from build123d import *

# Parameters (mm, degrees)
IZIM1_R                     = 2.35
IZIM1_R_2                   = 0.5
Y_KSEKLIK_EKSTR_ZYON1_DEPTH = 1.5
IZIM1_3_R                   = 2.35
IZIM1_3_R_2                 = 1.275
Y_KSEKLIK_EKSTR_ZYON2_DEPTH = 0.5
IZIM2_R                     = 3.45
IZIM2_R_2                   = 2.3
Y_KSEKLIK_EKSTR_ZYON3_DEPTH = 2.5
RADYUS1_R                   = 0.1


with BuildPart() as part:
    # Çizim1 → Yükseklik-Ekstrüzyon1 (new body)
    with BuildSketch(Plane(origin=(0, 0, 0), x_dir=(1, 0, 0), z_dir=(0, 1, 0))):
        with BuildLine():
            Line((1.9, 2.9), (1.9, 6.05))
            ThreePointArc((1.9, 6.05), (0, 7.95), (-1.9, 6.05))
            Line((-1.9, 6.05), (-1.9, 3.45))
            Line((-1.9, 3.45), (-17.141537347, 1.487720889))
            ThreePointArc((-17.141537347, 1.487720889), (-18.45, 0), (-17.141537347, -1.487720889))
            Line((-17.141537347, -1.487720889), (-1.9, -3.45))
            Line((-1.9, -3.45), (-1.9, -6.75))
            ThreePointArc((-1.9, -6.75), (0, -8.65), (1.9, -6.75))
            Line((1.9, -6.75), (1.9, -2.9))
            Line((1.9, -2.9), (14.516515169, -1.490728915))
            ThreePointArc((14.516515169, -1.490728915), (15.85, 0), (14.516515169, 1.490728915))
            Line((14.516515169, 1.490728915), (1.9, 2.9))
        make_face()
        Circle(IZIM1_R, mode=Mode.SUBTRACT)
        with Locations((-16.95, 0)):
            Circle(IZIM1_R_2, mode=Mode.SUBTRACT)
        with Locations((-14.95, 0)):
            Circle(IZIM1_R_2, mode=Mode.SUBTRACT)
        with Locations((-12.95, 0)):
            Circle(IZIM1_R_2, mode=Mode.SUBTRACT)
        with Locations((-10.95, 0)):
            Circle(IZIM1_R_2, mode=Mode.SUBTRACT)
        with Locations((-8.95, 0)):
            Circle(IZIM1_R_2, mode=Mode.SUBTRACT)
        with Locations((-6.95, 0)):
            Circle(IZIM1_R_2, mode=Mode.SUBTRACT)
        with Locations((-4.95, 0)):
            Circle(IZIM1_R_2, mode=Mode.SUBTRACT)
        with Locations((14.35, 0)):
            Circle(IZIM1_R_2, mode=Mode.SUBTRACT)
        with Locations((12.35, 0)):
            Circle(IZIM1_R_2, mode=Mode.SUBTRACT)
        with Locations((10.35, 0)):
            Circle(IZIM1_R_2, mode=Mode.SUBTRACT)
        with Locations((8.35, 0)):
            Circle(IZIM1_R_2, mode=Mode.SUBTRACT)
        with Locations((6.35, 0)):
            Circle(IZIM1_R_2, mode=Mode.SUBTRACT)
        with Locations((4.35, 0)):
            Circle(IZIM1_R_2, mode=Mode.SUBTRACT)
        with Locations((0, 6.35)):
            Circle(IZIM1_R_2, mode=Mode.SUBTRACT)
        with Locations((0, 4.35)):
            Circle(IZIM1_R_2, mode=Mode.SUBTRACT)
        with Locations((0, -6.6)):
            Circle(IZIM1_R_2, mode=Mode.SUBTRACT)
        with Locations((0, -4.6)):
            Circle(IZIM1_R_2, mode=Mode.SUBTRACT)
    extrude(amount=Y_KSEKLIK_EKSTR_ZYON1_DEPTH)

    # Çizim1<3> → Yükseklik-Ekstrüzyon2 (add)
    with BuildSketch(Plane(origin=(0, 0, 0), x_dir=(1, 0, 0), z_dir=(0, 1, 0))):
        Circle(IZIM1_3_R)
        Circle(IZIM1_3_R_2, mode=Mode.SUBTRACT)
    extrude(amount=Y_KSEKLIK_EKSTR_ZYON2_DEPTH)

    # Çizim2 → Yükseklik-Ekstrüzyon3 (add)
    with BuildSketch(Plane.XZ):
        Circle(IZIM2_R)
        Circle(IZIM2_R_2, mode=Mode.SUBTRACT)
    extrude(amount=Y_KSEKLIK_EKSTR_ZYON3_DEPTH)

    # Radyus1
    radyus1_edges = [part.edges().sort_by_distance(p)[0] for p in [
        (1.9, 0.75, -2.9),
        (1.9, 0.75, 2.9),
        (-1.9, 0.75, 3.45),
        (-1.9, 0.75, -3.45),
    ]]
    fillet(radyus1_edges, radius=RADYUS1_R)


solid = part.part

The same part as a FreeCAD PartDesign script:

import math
import FreeCAD as App
import Part
import Sketcher


def edges_at(feature, points):
    """Names of the edges that pass closest to the given points."""
    edges = feature.Shape.Edges
    near = lambda p: min(range(len(edges)), key=lambda i: edges[i].distToShape(Part.Vertex(*p))[0])
    return sorted({f"Edge{near(p) + 1}" for p in points})

doc = App.newDocument("Part")
params = doc.addObject("Spreadsheet::Sheet", "Params")
for row, (alias, value) in enumerate([
    ("sketch1_diameter", "1 mm"),
    ("sketch1_diameter2", "4.7 mm"),
    ("sketch1_radius", "1.9 mm"),
    ("sketch1_radius2", "1.5 mm"),
    ("sketch1_height", "2.6 mm"),
    ("pad1_length", "1.5 mm"),
    ("sketch2_diameter", "4.7 mm"),
    ("sketch2_diameter2", "2.55 mm"),
    ("pad2_length", "0.5 mm"),
    ("sketch3_diameter", "6.9 mm"),
    ("sketch3_diameter2", "4.6 mm"),
    ("pad3_length", "2.5 mm"),
    ("fillet_radius", "0.1 mm"),
], start=1):
    params.set(f"A{row}", alias)
    params.set(f"B{row}", "=" + value)
    params.setAlias(f"B{row}", alias)

body = doc.addObject("PartDesign::Body", "Body")

# Sketch on XZ plane
sketch1 = body.newObject("Sketcher::SketchObject", "Sketch")
sketch1.AttachmentSupport = (doc.getObject("XZ_Plane"), [""])
sketch1.MapMode = "FlatFace"
sketch1.addGeometry([
    Part.LineSegment(App.Vector(1.9, -2.9, 0), App.Vector(1.9, -6, 0)),  # 0
    Part.ArcOfCircle(Part.Circle(App.Vector(0, -6, 0), App.Vector(0, 0, 1), 1.9), math.radians(180), math.radians(360)),  # 1
    Part.LineSegment(App.Vector(-1.9, -6, 0), App.Vector(-1.9, -3.5, 0)),  # 2
    Part.LineSegment(App.Vector(-1.9, -3.5, 0), App.Vector(-17.1, -1.5, 0)),  # 3
    Part.ArcOfCircle(Part.Circle(App.Vector(-16.9, 0, 0), App.Vector(0, 0, 1), 1.5), math.radians(97), math.radians(263)),  # 4
    Part.LineSegment(App.Vector(-17.1, 1.5, 0), App.Vector(-1.9, 3.5, 0)),  # 5
    Part.LineSegment(App.Vector(-1.9, 3.5, 0), App.Vector(-1.9, 6.8, 0)),  # 6
    Part.ArcOfCircle(Part.Circle(App.Vector(0, 6.8, 0), App.Vector(0, 0, 1), 1.9), math.radians(0), math.radians(180)),  # 7
    Part.LineSegment(App.Vector(1.9, 6.8, 0), App.Vector(1.9, 2.9, 0)),  # 8
    Part.LineSegment(App.Vector(1.9, 2.9, 0), App.Vector(14.5, 1.5, 0)),  # 9
    Part.ArcOfCircle(Part.Circle(App.Vector(14.3, 0, 0), App.Vector(0, 0, 1), 1.5), math.radians(-84), math.radians(84)),  # 10
    Part.LineSegment(App.Vector(14.5, -1.5, 0), App.Vector(1.9, -2.9, 0)),  # 11
    Part.Circle(App.Vector(0, 6.6, 0), App.Vector(0, 0, 1), 0.5),  # 12
    Part.Circle(App.Vector(0, 4.6, 0), App.Vector(0, 0, 1), 0.5),  # 13
    Part.Circle(App.Vector(-16.9, 0, 0), App.Vector(0, 0, 1), 0.5),  # 14
    Part.Circle(App.Vector(-14.9, 0, 0), App.Vector(0, 0, 1), 0.5),  # 15
    Part.Circle(App.Vector(-12.9, 0, 0), App.Vector(0, 0, 1), 0.5),  # 16
    Part.Circle(App.Vector(-10.9, 0, 0), App.Vector(0, 0, 1), 0.5),  # 17
    Part.Circle(App.Vector(-8.9, 0, 0), App.Vector(0, 0, 1), 0.5),  # 18
    Part.Circle(App.Vector(-7, 0, 0), App.Vector(0, 0, 1), 0.5),  # 19
    Part.Circle(App.Vector(-5, 0, 0), App.Vector(0, 0, 1), 0.5),  # 20
    Part.Circle(App.Vector(0, 0, 0), App.Vector(0, 0, 1), 2.4),  # 21
    Part.Circle(App.Vector(4.3, 0, 0), App.Vector(0, 0, 1), 0.5),  # 22
    Part.Circle(App.Vector(6.3, 0, 0), App.Vector(0, 0, 1), 0.5),  # 23
    Part.Circle(App.Vector(8.3, 0, 0), App.Vector(0, 0, 1), 0.5),  # 24
    Part.Circle(App.Vector(10.3, 0, 0), App.Vector(0, 0, 1), 0.5),  # 25
    Part.Circle(App.Vector(12.3, 0, 0), App.Vector(0, 0, 1), 0.5),  # 26
    Part.Circle(App.Vector(14.3, 0, 0), App.Vector(0, 0, 1), 0.5),  # 27
    Part.Circle(App.Vector(0, -4.3, 0), App.Vector(0, 0, 1), 0.5),  # 28
    Part.Circle(App.Vector(0, -6.3, 0), App.Vector(0, 0, 1), 0.5),  # 29
], False)
sketch1.addConstraint([
    Sketcher.Constraint("Tangent", 0, 2, 1, 2),
    Sketcher.Constraint("Tangent", 1, 1, 2, 1),
    Sketcher.Constraint("Coincident", 2, 2, 3, 1),
    Sketcher.Constraint("Tangent", 3, 2, 4, 2),
    Sketcher.Constraint("Tangent", 4, 1, 5, 1),
    Sketcher.Constraint("Coincident", 5, 2, 6, 1),
    Sketcher.Constraint("Tangent", 6, 2, 7, 2),
    Sketcher.Constraint("Tangent", 7, 1, 8, 1),
    Sketcher.Constraint("Coincident", 8, 2, 9, 1),
    Sketcher.Constraint("Tangent", 9, 2, 10, 2),
    Sketcher.Constraint("Tangent", 10, 1, 11, 1),
    Sketcher.Constraint("Coincident", 11, 2, 0, 1),
    Sketcher.Constraint("Vertical", 0),
    Sketcher.Constraint("Vertical", 2),
    Sketcher.Constraint("Vertical", 6),
    Sketcher.Constraint("Vertical", 8),
    Sketcher.Constraint("Coincident", 21, 3, -1, 1),
    Sketcher.Constraint("Coincident", 14, 3, 4, 3),
    Sketcher.Constraint("Coincident", 27, 3, 10, 3),
    Sketcher.Constraint("Equal", 1, 7),
    Sketcher.Constraint("Equal", 4, 10),
    Sketcher.Constraint("Equal", 12, 13),
    Sketcher.Constraint("Equal", 13, 14),
    Sketcher.Constraint("Equal", 14, 15),
    Sketcher.Constraint("Equal", 15, 16),
    Sketcher.Constraint("Equal", 16, 17),
    Sketcher.Constraint("Equal", 17, 18),
    Sketcher.Constraint("Equal", 18, 19),
    Sketcher.Constraint("Equal", 19, 20),
    Sketcher.Constraint("Equal", 20, 22),
    Sketcher.Constraint("Equal", 22, 23),
    Sketcher.Constraint("Equal", 23, 24),
    Sketcher.Constraint("Equal", 24, 25),
    Sketcher.Constraint("Equal", 25, 26),
    Sketcher.Constraint("Equal", 26, 27),
    Sketcher.Constraint("Equal", 27, 28),
    Sketcher.Constraint("Equal", 28, 29),
    Sketcher.Constraint("Symmetric", 3, 2, 4, 1, -1),
    Sketcher.Constraint("Symmetric", 9, 2, 10, 1, -1),
    Sketcher.Constraint("PointOnObject", 1, 3, -2),
    Sketcher.Constraint("PointOnObject", 7, 3, -2),
    Sketcher.Constraint("PointOnObject", 12, 3, -2),
    Sketcher.Constraint("PointOnObject", 13, 3, -2),
    Sketcher.Constraint("PointOnObject", 15, 3, -1),
    Sketcher.Constraint("PointOnObject", 16, 3, -1),
    Sketcher.Constraint("PointOnObject", 17, 3, -1),
    Sketcher.Constraint("PointOnObject", 18, 3, -1),
    Sketcher.Constraint("PointOnObject", 19, 3, -1),
    Sketcher.Constraint("PointOnObject", 20, 3, -1),
    Sketcher.Constraint("PointOnObject", 22, 3, -1),
    Sketcher.Constraint("PointOnObject", 23, 3, -1),
    Sketcher.Constraint("PointOnObject", 24, 3, -1),
    Sketcher.Constraint("PointOnObject", 25, 3, -1),
    Sketcher.Constraint("PointOnObject", 26, 3, -1),
    Sketcher.Constraint("PointOnObject", 28, 3, -2),
    Sketcher.Constraint("PointOnObject", 29, 3, -2),
    Sketcher.Constraint("Diameter", 12, 1.0),
    Sketcher.Constraint("Diameter", 21, 4.7),
    Sketcher.Constraint("Radius", 1, 1.9),
    Sketcher.Constraint("Radius", 4, 1.5),
    Sketcher.Constraint("DistanceY", 2, 1, 2, 2, 2.6),
    Sketcher.Constraint("DistanceY", 6, 1, 6, 2, 3.3),
    Sketcher.Constraint("DistanceY", 13, 3, 12, 3, 2.0),
    Sketcher.Constraint("DistanceX", 4, 3, 15, 3, 2.0),
    Sketcher.Constraint("DistanceX", 15, 3, 16, 3, 2.0),
    Sketcher.Constraint("DistanceX", 16, 3, 17, 3, 2.0),
    Sketcher.Constraint("DistanceX", 17, 3, 18, 3, 2.0),
    Sketcher.Constraint("DistanceX", 18, 3, 19, 3, 2.0),
    Sketcher.Constraint("DistanceX", 19, 3, 20, 3, 2.0),
    Sketcher.Constraint("DistanceX", 22, 3, 23, 3, 2.0),
    Sketcher.Constraint("DistanceX", 23, 3, 10, 3, 8.0),
    Sketcher.Constraint("DistanceX", 23, 3, 24, 3, 2.0),
    Sketcher.Constraint("DistanceX", 24, 3, 25, 3, 2.0),
    Sketcher.Constraint("DistanceX", 26, 3, 10, 3, 2.0),
    Sketcher.Constraint("DistanceY", 29, 3, 28, 3, 2.0),
    Sketcher.Constraint("DistanceY", 0, 2, 0, 1, 3.15),
    Sketcher.Constraint("DistanceY", -1, 1, 12, 3, 6.6),
    Sketcher.Constraint("DistanceY", -1, 1, 8, 2, 2.9),
    Sketcher.Constraint("DistanceX", 4, 3, 10, 3, 31.3),
    Sketcher.Constraint("DistanceY", 1, 3, 28, 3, 1.7),
    Sketcher.Constraint("DistanceX", 4, 3, -1, 1, 16.95),
])
sketch1.setExpression("Constraints[56]", "Params.sketch1_diameter")
sketch1.setExpression("Constraints[57]", "Params.sketch1_diameter2")
sketch1.setExpression("Constraints[58]", "Params.sketch1_radius")
sketch1.setExpression("Constraints[59]", "Params.sketch1_radius2")
sketch1.setExpression("Constraints[60]", "Params.sketch1_height")
pad1 = body.newObject("PartDesign::Pad", "Pad")
pad1.Profile = sketch1
pad1.setExpression("Length", "Params.pad1_length")
pad1.Reversed = True

# Sketch on XZ plane
sketch2 = body.newObject("Sketcher::SketchObject", "Sketch001")
sketch2.AttachmentSupport = (doc.getObject("XZ_Plane"), [""])
sketch2.MapMode = "FlatFace"
sketch2.addGeometry([
    Part.Circle(App.Vector(0, 0, 0), App.Vector(0, 0, 1), 2.4),
    Part.Circle(App.Vector(0, 0, 0), App.Vector(0, 0, 1), 1.3),
], False)
sketch2.addConstraint([
    Sketcher.Constraint("Coincident", 0, 3, -1, 1),
    Sketcher.Constraint("Coincident", 1, 3, -1, 1),
    Sketcher.Constraint("Diameter", 0, 4.7),
    Sketcher.Constraint("Diameter", 1, 2.55),
])
sketch2.setExpression("Constraints[2]", "Params.sketch2_diameter")
sketch2.setExpression("Constraints[3]", "Params.sketch2_diameter2")
pad2 = body.newObject("PartDesign::Pad", "Pad001")
pad2.Profile = sketch2
pad2.setExpression("Length", "Params.pad2_length")
pad2.Reversed = True

# Sketch on XZ plane
sketch3 = body.newObject("Sketcher::SketchObject", "Sketch002")
sketch3.AttachmentSupport = (doc.getObject("XZ_Plane"), [""])
sketch3.MapMode = "FlatFace"
sketch3.addGeometry([
    Part.Circle(App.Vector(0, 0, 0), App.Vector(0, 0, 1), 3.5),
    Part.Circle(App.Vector(0, 0, 0), App.Vector(0, 0, 1), 2.3),
], False)
sketch3.addConstraint([
    Sketcher.Constraint("Coincident", 0, 3, -1, 1),
    Sketcher.Constraint("Coincident", 1, 3, -1, 1),
    Sketcher.Constraint("Diameter", 0, 6.9),
    Sketcher.Constraint("Diameter", 1, 4.6),
])
sketch3.setExpression("Constraints[2]", "Params.sketch3_diameter")
sketch3.setExpression("Constraints[3]", "Params.sketch3_diameter2")
pad3 = body.newObject("PartDesign::Pad", "Pad002")
pad3.Profile = sketch3
pad3.setExpression("Length", "Params.pad3_length")
doc.recompute()

fillet = body.newObject("PartDesign::Fillet", "Fillet")
fillet.Base = (pad3, edges_at(pad3, [
    (1.9, 0.75, -2.9),
    (1.9, 0.75, 2.9),
    (-1.9, 0.75, 3.45),
    (-1.9, 0.75, -3.45),
]))
fillet.setExpression("Radius", "Params.fillet_radius")

doc.recompute()
